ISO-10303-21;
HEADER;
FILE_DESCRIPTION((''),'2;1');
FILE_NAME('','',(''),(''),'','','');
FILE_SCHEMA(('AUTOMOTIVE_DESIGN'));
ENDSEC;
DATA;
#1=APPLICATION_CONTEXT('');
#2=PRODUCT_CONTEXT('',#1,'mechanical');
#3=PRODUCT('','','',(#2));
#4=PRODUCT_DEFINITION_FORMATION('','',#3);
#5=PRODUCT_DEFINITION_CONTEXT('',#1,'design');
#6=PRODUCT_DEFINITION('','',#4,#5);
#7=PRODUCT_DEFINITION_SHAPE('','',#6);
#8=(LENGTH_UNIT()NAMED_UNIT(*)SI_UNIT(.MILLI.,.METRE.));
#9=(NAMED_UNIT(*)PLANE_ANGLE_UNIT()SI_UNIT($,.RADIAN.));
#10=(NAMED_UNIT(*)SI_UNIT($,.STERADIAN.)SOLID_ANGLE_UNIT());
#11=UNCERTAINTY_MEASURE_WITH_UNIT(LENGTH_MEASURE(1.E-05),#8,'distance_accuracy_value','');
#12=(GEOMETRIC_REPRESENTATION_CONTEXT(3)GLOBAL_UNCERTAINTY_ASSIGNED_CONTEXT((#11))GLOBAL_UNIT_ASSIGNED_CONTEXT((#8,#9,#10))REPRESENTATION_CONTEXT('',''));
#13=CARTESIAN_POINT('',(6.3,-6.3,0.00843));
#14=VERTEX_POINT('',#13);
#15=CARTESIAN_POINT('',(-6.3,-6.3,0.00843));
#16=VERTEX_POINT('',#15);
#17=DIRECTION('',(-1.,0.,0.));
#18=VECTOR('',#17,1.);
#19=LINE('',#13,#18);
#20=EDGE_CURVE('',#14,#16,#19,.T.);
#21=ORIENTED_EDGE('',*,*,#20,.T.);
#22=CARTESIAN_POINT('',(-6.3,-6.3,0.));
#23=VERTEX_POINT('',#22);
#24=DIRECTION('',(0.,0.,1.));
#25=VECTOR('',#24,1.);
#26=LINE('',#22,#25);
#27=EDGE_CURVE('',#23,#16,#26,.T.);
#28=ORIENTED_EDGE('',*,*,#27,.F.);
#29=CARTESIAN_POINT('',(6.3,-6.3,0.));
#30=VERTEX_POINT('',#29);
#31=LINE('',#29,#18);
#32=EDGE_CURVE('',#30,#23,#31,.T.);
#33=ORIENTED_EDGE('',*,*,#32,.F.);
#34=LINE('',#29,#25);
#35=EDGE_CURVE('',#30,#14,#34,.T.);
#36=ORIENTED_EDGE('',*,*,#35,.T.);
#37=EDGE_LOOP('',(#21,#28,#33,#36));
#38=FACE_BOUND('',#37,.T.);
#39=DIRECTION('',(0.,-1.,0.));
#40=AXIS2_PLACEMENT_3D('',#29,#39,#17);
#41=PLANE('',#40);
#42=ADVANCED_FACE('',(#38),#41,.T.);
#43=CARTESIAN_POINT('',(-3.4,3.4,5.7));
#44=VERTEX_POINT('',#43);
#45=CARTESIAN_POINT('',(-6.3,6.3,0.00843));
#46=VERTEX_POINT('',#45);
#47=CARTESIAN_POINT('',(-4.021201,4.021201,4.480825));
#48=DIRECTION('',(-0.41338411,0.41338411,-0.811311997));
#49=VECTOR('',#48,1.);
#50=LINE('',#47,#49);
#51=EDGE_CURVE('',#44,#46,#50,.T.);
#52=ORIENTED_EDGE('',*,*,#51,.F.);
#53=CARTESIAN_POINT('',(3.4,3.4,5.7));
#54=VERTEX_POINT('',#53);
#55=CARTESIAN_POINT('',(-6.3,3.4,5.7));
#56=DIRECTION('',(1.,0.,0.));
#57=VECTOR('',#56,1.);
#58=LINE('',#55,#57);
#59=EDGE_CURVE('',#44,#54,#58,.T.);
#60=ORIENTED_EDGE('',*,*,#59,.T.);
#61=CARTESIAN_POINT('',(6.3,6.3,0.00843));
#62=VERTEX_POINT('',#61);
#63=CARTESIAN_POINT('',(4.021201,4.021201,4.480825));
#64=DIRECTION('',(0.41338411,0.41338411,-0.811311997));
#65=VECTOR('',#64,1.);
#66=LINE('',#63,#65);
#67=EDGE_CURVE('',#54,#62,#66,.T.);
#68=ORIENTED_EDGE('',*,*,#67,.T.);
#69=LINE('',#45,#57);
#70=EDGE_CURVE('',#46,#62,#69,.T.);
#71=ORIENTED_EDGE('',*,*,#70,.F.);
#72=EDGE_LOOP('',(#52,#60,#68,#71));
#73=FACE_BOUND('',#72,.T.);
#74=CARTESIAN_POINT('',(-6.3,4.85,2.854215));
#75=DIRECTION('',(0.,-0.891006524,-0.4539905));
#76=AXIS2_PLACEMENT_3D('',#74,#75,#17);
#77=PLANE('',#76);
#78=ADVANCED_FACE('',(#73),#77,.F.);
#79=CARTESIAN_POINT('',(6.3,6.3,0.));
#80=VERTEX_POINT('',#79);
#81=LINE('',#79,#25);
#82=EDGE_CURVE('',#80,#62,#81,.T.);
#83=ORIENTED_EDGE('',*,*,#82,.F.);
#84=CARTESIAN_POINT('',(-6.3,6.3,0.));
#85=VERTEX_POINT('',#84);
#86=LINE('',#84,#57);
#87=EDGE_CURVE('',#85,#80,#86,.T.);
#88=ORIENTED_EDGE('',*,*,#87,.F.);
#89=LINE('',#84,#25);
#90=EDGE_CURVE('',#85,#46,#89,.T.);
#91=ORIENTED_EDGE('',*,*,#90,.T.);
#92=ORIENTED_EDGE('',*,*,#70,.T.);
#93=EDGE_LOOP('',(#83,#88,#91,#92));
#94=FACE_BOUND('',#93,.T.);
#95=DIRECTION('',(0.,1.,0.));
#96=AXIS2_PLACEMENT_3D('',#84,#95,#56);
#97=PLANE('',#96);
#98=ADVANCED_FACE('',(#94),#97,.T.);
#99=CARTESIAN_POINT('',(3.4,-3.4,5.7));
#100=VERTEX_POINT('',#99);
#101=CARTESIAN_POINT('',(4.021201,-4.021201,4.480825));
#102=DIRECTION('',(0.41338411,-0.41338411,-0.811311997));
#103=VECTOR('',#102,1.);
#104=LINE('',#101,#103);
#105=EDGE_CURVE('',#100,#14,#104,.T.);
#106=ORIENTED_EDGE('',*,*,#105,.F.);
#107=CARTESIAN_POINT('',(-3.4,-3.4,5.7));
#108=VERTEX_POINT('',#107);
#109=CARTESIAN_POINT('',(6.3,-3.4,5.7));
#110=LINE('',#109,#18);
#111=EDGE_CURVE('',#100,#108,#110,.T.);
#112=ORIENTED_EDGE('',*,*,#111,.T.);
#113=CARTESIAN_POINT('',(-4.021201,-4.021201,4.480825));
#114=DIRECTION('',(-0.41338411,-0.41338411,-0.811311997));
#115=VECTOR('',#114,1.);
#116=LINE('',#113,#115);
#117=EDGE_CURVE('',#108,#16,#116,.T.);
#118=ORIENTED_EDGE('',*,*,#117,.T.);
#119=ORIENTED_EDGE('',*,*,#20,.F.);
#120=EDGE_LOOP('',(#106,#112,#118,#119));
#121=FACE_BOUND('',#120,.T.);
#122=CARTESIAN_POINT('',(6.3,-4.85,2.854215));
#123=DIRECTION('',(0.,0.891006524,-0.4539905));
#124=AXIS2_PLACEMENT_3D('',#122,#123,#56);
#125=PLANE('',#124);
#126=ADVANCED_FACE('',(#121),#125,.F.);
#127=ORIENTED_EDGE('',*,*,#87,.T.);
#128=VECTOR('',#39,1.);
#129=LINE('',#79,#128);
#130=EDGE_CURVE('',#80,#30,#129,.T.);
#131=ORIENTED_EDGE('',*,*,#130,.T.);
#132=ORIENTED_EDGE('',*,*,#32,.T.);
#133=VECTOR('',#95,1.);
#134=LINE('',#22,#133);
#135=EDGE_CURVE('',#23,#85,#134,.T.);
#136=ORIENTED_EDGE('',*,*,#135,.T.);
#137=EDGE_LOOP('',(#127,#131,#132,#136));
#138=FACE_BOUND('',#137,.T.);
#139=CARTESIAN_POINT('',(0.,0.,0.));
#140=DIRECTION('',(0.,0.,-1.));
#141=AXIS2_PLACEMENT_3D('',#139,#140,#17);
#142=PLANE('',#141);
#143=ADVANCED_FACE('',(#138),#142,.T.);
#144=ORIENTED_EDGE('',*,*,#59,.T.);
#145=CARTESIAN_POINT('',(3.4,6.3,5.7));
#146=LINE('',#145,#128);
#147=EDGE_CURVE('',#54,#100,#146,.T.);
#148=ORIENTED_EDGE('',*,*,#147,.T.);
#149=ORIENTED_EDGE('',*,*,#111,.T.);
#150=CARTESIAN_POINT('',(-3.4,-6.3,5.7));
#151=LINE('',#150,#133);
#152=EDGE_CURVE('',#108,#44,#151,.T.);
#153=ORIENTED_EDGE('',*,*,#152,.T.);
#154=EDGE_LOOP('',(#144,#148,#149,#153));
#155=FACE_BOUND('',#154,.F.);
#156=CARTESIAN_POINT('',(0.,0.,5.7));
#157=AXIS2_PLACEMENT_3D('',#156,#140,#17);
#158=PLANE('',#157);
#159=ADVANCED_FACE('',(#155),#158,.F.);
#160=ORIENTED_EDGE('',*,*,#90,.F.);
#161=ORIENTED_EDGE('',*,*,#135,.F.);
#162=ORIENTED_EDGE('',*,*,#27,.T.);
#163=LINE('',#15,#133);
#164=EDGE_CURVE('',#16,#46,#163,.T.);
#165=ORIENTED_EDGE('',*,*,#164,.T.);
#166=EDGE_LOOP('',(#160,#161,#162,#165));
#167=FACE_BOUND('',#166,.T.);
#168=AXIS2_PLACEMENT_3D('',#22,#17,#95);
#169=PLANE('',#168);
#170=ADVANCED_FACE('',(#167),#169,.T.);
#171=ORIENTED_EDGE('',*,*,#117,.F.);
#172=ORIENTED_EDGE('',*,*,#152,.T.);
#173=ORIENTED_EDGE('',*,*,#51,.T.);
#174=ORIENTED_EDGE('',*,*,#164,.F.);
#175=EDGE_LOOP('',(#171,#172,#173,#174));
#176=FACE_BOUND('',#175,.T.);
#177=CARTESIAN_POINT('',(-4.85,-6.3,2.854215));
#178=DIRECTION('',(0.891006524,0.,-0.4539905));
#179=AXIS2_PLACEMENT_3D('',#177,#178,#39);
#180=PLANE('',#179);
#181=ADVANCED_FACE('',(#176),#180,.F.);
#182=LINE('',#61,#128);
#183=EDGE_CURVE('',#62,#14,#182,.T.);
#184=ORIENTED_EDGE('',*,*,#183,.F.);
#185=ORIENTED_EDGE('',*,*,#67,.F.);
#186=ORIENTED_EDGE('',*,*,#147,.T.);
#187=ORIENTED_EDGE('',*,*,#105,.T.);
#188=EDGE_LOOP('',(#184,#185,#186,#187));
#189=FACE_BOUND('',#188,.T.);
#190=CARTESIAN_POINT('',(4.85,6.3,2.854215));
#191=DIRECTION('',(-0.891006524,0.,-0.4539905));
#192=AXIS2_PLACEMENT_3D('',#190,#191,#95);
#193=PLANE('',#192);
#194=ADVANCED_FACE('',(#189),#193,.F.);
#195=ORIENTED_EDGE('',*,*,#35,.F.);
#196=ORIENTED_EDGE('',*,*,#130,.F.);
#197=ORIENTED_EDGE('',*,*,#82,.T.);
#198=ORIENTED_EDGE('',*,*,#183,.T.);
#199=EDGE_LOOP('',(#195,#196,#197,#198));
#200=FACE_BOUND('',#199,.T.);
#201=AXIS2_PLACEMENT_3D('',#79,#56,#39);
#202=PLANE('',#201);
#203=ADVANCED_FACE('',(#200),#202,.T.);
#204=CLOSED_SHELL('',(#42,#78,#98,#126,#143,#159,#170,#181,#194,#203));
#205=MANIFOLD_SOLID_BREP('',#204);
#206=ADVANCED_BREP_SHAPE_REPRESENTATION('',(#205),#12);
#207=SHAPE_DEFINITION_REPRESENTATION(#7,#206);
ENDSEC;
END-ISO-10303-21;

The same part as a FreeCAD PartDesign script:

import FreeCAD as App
import Part
import Sketcher


def edges_at(feature, points):
    """Names of the edges that pass closest to the given points."""
    edges = feature.Shape.Edges
    near = lambda p: min(range(len(edges)), key=lambda i: edges[i].distToShape(Part.Vertex(*p))[0])
    return sorted({f"Edge{near(p) + 1}" for p in points})


def add_polygon(sketch, points):
    """Adds a closed chain of lines whose ends are joined by coincident constraints."""
    first, n = sketch.GeometryCount, len(points)
    for a, b in zip(points, points[1:] + points[:1]):
        sketch.addGeometry(Part.LineSegment(App.Vector(*a, 0), App.Vector(*b, 0)), False)
    for i in range(n):
        sketch.addConstraint(Sketcher.Constraint("Coincident", first + i, 2, first + (i + 1) % n, 1))

doc = App.newDocument("Part")
body = doc.addObject("PartDesign::Body", "Body")

sketch1 = doc.addObject("Sketcher::SketchObject", "Sketch")
body.addObject(sketch1)
sketch1.AttachmentSupport = (doc.XY_Plane, [""])
sketch1.MapMode = "FlatFace"
add_polygon(sketch1, [(6, -6), (6, 6), (-6, 6), (-6, -6)])
sketch1.addConstraint([
    Sketcher.Constraint("Vertical", 0),
    Sketcher.Constraint("Horizontal", 1),
    Sketcher.Constraint("Vertical", 2),
    Sketcher.Constraint("Horizontal", 3),
    Sketcher.Constraint("Symmetric", 0, 2, 2, 2, -1, 1),
    Sketcher.Constraint("Equal", 3, 0),
    Sketcher.Constraint("DistanceX", 1, 2, 1, 1, 12.6),
])
pad1 = doc.addObject("PartDesign::Pad", "Pad")
body.addObject(pad1)
pad1.Profile = sketch1
pad1.Length = 5.7
doc.recompute()

chamfer = doc.addObject("PartDesign::Chamfer", "Chamfer")
body.addObject(chamfer)
chamfer.Base = (pad1, edges_at(pad1, [
    (0, -6.3, 5.7),
    (6.3, 0, 5.7),
    (0, 6.3, 5.7),
    (-6.3, 0, 5.7),
]))
chamfer.ChamferType = "Distance and Angle"
chamfer.Size = 2.9
chamfer.Angle = 63
chamfer.FlipDirection = True

doc.recompute()
